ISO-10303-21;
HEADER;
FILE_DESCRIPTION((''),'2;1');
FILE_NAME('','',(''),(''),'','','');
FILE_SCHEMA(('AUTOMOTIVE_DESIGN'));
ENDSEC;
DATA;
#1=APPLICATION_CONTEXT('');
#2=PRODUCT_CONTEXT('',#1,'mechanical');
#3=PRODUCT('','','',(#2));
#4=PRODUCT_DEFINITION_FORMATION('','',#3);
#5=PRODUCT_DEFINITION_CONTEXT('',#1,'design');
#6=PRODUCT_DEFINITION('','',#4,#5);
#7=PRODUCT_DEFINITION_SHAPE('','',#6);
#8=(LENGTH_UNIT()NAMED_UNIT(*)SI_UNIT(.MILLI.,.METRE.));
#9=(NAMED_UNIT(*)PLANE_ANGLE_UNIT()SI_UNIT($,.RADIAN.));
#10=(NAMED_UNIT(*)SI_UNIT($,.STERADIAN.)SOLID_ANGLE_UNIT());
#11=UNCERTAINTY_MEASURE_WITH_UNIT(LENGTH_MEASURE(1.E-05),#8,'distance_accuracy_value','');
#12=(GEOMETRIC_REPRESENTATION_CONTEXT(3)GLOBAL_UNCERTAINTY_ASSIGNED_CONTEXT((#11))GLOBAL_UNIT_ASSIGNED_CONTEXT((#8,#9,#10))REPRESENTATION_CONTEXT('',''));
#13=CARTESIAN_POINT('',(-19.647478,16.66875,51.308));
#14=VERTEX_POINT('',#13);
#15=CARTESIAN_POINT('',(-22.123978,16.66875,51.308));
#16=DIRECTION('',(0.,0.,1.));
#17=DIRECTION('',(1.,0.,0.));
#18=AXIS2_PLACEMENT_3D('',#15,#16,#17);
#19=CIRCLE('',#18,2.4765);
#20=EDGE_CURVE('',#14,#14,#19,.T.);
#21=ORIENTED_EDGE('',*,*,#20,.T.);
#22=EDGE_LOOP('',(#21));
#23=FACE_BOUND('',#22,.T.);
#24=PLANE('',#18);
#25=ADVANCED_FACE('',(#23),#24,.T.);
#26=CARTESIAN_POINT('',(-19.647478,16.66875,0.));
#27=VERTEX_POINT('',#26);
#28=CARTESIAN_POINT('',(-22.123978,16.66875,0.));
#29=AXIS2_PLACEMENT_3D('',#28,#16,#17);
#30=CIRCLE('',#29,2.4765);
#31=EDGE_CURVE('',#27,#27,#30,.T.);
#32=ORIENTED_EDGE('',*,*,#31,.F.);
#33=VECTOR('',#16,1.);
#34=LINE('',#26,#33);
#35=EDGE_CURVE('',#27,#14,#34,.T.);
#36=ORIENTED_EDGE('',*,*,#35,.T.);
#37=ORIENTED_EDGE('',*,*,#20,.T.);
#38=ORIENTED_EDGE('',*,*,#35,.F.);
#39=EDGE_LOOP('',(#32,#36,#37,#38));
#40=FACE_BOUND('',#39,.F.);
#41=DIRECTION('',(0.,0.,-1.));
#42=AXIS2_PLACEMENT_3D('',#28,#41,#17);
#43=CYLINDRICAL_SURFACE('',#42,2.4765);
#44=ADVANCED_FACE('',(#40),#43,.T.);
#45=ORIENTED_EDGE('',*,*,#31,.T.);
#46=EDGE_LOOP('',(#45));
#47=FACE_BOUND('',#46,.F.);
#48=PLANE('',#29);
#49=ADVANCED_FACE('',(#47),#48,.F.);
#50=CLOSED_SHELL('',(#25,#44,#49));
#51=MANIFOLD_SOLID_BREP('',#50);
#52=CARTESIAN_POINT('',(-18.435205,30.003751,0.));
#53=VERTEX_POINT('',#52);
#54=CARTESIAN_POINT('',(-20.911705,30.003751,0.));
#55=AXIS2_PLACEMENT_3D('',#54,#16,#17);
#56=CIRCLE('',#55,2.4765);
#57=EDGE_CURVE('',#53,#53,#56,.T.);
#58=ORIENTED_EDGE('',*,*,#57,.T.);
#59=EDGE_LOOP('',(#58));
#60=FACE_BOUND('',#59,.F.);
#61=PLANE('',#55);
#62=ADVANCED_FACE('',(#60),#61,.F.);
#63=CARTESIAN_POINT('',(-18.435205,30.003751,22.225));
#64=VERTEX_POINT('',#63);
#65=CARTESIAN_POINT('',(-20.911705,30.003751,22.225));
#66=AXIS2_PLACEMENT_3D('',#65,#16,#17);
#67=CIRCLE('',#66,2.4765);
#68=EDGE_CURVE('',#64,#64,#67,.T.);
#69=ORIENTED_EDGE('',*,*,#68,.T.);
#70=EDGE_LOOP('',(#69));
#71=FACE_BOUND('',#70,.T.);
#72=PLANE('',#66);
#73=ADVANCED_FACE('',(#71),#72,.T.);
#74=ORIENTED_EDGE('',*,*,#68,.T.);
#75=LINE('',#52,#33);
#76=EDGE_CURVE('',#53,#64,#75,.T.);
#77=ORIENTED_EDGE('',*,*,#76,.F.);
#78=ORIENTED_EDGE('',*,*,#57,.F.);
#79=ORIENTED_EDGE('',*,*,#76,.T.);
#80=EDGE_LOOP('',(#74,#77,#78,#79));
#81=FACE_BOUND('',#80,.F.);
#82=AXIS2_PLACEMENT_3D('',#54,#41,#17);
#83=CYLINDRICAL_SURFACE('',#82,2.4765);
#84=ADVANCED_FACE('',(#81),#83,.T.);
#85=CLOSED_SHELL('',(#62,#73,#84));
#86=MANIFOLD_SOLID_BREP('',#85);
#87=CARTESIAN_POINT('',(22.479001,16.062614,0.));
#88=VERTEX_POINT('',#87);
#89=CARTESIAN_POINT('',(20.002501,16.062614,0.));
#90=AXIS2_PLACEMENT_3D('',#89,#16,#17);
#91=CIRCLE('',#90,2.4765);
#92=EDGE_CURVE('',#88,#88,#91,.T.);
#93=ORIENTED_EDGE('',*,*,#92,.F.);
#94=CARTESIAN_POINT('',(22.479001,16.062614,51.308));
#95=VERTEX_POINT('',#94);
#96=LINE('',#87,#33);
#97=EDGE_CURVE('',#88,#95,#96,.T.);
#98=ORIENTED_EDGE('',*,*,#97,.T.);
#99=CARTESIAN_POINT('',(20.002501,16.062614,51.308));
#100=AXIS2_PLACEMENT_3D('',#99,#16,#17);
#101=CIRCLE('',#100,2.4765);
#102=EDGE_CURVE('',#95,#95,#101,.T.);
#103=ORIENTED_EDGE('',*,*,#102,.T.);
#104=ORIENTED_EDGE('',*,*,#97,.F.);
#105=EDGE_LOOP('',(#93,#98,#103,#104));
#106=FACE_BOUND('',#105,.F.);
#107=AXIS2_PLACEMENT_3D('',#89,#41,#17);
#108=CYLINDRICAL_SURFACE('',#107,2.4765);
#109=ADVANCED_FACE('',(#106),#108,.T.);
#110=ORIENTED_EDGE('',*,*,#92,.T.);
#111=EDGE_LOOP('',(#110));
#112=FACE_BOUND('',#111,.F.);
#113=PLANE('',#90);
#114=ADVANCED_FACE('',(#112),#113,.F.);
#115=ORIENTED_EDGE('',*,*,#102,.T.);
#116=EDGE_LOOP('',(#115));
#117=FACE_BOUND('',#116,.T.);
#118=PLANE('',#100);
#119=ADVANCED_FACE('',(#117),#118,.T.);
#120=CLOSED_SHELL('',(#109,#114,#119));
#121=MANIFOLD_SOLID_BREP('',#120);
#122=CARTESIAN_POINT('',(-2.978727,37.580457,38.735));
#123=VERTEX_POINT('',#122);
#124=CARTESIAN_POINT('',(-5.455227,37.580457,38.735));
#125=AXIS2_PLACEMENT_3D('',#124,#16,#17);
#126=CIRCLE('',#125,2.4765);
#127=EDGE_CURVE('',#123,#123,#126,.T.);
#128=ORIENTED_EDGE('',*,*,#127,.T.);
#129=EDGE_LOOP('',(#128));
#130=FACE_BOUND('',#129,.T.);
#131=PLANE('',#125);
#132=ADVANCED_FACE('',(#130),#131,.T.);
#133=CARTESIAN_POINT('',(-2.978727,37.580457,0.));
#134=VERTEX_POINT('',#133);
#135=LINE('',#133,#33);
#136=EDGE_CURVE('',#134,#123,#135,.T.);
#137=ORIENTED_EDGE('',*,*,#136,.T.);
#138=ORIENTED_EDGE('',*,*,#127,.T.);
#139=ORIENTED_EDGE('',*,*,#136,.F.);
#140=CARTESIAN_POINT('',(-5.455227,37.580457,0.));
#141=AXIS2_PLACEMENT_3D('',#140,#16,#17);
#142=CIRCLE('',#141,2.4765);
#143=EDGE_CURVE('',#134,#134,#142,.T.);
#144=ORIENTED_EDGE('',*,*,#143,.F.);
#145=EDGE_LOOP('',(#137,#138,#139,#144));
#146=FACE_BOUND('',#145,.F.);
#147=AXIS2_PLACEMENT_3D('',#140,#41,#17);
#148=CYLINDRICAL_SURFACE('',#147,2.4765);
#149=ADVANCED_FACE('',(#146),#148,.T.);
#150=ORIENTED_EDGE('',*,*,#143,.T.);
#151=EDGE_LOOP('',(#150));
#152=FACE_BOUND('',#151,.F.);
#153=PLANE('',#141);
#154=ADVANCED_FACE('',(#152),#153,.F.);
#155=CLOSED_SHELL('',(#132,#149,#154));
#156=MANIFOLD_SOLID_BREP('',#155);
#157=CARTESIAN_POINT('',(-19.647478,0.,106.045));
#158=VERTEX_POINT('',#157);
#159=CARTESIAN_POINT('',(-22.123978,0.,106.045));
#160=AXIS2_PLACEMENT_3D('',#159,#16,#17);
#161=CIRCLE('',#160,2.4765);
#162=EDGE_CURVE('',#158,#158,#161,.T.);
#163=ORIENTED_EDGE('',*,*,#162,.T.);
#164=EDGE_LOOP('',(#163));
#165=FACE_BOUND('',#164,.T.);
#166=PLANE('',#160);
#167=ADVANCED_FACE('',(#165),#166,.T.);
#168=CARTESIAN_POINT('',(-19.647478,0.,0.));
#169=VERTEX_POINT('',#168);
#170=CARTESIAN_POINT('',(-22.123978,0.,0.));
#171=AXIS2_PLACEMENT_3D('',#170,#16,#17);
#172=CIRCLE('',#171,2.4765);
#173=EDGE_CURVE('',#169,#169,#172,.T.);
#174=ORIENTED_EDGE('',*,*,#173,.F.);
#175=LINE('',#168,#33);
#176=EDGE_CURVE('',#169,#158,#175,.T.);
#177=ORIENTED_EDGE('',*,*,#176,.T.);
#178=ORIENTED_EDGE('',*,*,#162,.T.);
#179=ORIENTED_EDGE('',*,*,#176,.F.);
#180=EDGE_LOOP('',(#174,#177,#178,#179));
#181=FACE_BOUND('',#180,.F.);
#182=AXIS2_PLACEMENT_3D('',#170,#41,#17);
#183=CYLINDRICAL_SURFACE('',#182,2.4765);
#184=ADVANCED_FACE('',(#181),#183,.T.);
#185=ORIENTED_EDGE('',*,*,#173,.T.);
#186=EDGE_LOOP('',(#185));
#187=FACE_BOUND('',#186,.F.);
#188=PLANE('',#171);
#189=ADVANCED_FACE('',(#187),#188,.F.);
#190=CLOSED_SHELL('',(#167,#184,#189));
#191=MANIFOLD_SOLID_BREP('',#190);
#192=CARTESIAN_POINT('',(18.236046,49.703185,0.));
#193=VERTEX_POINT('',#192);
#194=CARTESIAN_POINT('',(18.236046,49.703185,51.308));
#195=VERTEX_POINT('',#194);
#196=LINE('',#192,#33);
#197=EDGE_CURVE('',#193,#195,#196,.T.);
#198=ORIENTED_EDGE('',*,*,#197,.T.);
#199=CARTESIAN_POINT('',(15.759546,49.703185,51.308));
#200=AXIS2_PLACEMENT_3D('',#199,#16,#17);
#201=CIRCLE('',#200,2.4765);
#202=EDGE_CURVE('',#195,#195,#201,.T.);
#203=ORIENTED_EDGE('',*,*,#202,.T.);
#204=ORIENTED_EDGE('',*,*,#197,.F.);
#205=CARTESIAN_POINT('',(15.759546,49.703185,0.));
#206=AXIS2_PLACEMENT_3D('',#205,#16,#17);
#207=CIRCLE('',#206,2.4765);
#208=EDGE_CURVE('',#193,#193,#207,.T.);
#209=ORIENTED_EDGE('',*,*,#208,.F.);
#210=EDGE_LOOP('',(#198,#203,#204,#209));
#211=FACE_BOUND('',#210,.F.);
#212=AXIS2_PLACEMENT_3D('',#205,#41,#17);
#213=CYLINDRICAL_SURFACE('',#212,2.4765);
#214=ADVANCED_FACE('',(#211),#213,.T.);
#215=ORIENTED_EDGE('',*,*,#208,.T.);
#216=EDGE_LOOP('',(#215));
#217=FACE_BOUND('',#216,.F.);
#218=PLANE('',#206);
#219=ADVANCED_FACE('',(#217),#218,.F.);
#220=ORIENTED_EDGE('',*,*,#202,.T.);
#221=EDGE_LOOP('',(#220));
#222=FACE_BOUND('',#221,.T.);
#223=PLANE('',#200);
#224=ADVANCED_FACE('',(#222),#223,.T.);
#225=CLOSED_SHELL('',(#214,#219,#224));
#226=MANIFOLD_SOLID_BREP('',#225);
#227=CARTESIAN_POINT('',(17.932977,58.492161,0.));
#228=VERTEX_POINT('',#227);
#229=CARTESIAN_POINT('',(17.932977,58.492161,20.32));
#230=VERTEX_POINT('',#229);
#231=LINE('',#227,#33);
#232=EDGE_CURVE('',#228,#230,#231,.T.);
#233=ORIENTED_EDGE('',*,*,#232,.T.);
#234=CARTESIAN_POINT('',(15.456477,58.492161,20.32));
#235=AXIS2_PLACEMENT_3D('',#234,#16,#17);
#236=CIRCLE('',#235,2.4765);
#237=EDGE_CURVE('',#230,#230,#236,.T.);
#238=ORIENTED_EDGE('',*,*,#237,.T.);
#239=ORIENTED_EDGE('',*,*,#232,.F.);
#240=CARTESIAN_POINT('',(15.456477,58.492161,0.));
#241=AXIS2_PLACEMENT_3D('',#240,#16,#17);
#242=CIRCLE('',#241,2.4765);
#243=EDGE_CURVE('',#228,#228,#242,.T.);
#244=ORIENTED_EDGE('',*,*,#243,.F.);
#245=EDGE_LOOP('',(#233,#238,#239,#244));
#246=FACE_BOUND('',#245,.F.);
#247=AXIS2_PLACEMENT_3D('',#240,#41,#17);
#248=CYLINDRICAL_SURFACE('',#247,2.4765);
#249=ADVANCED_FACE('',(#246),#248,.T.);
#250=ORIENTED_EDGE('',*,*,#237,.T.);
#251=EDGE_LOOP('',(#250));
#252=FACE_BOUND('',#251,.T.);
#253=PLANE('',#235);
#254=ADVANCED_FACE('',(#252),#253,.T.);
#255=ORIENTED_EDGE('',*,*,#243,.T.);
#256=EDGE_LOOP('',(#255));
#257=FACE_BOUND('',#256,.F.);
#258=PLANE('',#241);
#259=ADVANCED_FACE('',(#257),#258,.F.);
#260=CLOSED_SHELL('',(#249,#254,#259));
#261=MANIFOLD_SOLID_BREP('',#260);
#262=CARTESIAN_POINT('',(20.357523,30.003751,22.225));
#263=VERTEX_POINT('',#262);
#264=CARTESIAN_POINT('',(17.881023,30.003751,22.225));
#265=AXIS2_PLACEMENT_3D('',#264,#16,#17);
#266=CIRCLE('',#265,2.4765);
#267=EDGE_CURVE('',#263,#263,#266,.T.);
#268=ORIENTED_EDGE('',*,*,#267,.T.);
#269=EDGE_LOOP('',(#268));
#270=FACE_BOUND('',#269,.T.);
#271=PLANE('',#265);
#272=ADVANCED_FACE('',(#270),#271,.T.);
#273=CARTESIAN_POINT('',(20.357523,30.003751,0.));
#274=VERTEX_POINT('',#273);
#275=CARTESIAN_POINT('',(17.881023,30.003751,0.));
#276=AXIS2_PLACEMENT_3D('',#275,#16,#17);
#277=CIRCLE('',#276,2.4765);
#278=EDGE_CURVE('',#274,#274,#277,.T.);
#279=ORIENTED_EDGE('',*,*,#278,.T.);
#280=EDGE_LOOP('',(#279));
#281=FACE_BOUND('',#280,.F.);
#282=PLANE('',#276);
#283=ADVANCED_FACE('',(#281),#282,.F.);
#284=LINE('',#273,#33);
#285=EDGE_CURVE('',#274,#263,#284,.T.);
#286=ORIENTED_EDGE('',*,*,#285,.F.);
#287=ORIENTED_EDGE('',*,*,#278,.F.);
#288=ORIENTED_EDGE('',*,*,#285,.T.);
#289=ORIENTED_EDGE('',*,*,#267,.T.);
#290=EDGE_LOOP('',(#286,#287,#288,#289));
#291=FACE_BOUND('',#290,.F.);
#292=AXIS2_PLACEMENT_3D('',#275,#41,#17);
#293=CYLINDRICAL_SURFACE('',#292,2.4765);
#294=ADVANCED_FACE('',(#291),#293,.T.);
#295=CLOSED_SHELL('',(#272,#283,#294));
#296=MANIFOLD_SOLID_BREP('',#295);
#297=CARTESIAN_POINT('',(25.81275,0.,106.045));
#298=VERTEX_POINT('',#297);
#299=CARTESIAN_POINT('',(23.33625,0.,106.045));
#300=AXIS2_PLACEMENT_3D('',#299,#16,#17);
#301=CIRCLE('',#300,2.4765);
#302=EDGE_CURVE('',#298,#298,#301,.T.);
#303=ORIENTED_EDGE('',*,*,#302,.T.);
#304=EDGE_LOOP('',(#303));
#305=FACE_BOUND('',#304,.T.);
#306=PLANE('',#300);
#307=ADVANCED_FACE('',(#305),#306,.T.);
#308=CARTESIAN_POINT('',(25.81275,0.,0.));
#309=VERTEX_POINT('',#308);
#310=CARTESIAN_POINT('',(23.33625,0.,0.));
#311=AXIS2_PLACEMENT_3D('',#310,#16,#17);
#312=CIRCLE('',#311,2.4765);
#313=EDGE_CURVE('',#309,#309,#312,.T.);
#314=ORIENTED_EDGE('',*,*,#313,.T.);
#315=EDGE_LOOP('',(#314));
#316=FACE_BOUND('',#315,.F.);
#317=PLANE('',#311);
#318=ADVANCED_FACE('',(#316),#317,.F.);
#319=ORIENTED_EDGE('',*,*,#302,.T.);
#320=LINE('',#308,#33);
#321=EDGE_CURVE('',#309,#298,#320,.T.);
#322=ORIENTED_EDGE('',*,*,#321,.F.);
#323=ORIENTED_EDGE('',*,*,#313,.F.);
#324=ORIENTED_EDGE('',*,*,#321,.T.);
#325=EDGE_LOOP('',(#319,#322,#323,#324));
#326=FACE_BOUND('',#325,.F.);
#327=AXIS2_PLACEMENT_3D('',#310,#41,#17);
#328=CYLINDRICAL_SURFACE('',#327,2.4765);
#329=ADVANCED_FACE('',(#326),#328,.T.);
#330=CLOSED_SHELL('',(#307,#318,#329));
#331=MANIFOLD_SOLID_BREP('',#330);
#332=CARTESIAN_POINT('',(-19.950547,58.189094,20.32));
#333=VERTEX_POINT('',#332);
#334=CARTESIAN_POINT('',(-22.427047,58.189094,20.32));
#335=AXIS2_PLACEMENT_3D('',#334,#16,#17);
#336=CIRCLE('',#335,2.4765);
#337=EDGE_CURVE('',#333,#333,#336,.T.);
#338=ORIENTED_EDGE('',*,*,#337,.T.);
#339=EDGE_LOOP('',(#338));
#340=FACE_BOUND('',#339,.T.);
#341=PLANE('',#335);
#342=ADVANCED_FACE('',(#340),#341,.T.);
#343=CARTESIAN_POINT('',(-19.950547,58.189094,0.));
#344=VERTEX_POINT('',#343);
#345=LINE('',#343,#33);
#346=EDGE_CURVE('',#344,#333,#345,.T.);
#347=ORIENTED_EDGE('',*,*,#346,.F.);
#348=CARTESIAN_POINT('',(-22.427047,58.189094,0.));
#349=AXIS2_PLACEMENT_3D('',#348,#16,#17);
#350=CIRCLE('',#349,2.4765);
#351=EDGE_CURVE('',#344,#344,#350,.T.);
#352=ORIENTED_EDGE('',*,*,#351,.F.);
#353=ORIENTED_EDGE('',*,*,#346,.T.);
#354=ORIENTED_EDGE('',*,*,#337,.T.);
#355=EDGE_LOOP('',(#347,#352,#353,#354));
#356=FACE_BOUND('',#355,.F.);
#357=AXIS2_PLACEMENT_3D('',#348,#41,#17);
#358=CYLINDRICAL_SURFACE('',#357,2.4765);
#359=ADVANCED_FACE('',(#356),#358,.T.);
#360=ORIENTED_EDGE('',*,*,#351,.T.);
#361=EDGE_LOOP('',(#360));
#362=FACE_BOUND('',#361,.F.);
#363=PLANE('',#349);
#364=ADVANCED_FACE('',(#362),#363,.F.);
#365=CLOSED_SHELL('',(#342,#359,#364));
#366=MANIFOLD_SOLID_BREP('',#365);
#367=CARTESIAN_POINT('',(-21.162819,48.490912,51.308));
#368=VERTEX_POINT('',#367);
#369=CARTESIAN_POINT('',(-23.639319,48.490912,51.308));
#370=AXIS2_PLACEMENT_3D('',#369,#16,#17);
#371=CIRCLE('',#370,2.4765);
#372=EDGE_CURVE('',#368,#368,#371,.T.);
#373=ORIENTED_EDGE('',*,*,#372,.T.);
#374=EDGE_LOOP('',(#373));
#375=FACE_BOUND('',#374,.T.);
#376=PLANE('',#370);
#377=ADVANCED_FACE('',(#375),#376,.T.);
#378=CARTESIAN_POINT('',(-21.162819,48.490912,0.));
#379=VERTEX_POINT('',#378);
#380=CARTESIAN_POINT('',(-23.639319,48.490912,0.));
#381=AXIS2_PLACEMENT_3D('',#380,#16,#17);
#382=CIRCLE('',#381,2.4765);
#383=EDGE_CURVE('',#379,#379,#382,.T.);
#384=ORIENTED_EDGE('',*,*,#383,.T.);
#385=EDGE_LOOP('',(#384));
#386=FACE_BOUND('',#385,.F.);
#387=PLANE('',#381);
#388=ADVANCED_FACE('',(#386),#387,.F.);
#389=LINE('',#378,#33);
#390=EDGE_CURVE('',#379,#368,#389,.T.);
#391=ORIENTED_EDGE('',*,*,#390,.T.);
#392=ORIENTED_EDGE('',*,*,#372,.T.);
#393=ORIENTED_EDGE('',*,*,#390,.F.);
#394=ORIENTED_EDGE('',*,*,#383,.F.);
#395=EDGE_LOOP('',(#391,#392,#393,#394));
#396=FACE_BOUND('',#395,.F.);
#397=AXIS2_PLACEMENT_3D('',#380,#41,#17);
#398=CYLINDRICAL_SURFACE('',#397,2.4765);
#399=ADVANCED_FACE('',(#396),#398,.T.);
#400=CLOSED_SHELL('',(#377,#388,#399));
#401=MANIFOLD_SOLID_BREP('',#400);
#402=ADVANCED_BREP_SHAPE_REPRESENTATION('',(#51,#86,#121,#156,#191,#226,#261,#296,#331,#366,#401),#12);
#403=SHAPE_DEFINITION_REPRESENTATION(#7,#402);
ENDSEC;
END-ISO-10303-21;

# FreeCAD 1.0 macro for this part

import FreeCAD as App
import Part
import Sketcher
Q = App.Units.Quantity

doc = App.newDocument("Part")
body = doc.addObject("PartDesign::Body", "Body")
body.AllowCompound = True

sketch1 = body.newObject("Sketcher::SketchObject", "Sketch")
sketch1.AttachmentSupport = (doc.getObject("XY_Plane"), [""])
sketch1.MapMode = "FlatFace"
sketch1.addGeometry([
    Part.Circle(App.Vector(-22.123978, 0, 0), App.Vector(0, 0, 1), 2.4765),
    Part.Circle(App.Vector(23.33625, 0, 0), App.Vector(0, 0, 1), 2.4765),
], False)
sketch1.addConstraint([
    Sketcher.Constraint("Equal", 0, 1),
    Sketcher.Constraint("PointOnObject", 0, 3, -1),
    Sketcher.Constraint("PointOnObject", 1, 3, -1),
    Sketcher.Constraint("Diameter", 0, Q("0.195 in")),
    Sketcher.Constraint("DistanceX", 0, 3, -1, 1, 22.123978),
    Sketcher.Constraint("DistanceX", -1, 1, 1, 3, 23.33625),
])
pad1 = body.newObject("PartDesign::Pad", "Pad")
pad1.Profile = sketch1
pad1.Length = Q("4.175 in")
body2 = doc.addObject("PartDesign::Body", "Body001")
body2.AllowCompound = True

sketch2 = body2.newObject("Sketcher::SketchObject", "Sketch001")
sketch2.AttachmentSupport = (doc.getObject("XY_Plane001"), [""])
sketch2.MapMode = "FlatFace"
sketch2.addGeometry([
    Part.Circle(App.Vector(-22.123978, 16.66875, 0), App.Vector(0, 0, 1), 2.4765),
    Part.Circle(App.Vector(20.002501, 16.062614, 0), App.Vector(0, 0, 1), 2.4765),
], False)
sketch2.addConstraint([
    Sketcher.Constraint("Equal", 0, 1),
    Sketcher.Constraint("Diameter", 0, Q("0.195 in")),
    Sketcher.Constraint("DistanceY", -1, 1, 0, 3, Q("0.65625 in")),
    Sketcher.Constraint("DistanceX", -1, 1, 1, 3, Q("0.7875 in")),
    Sketcher.Constraint("DistanceX", 0, 3, -1, 1, 22.123978),
    Sketcher.Constraint("DistanceY", -1, 1, 1, 3, 16.062614),
])
pad2 = body2.newObject("PartDesign::Pad", "Pad001")
pad2.Profile = sketch2
pad2.Length = Q("2.02 in")
body3 = doc.addObject("PartDesign::Body", "Body002")
body3.AllowCompound = True

sketch3 = body3.newObject("Sketcher::SketchObject", "Sketch002")
sketch3.AttachmentSupport = (doc.getObject("XY_Plane002"), [""])
sketch3.MapMode = "FlatFace"
sketch3.addGeometry([
    Part.Circle(App.Vector(-20.911705, 30.003751, 0), App.Vector(0, 0, 1), 2.4765),
    Part.Circle(App.Vector(17.881023, 30.003751, 0), App.Vector(0, 0, 1), 2.4765),
], False)
sketch3.addConstraint([
    Sketcher.Constraint("Equal", 0, 1),
    Sketcher.Constraint("Horizontal", 0, 3, 1, 3),
    Sketcher.Constraint("Diameter", 0, Q("0.195 in")),
    Sketcher.Constraint("DistanceY", -1, 1, 0, 3, 30.003751),
    Sketcher.Constraint("DistanceX", 0, 3, -1, 1, 20.911705),
    Sketcher.Constraint("DistanceX", -1, 1, 1, 3, 17.881023),
])
pad3 = body3.newObject("PartDesign::Pad", "Pad002")
pad3.Profile = sketch3
pad3.Length = Q("0.875 in")
body4 = doc.addObject("PartDesign::Body", "Body003")

sketch4 = body4.newObject("Sketcher::SketchObject", "Sketch003")
sketch4.AttachmentSupport = (doc.getObject("XY_Plane003"), [""])
sketch4.MapMode = "FlatFace"
sketch4.addGeometry(Part.Circle(App.Vector(-5.455227, 37.580457, 0), App.Vector(0, 0, 1), 2.4765), False)
sketch4.addConstraint([
    Sketcher.Constraint("Diameter", 0, Q("0.195 in")),
    Sketcher.Constraint("DistanceX", 0, 3, -1, 1, 5.455227),
    Sketcher.Constraint("DistanceY", -1, 1, 0, 3, 37.580457),
])
pad4 = body4.newObject("PartDesign::Pad", "Pad003")
pad4.Profile = sketch4
pad4.Length = Q("1.525 in")
body5 = doc.addObject("PartDesign::Body", "Body004")
body5.AllowCompound = True

sketch5 = body5.newObject("Sketcher::SketchObject", "Sketch004")
sketch5.AttachmentSupport = (doc.getObject("XY_Plane004"), [""])
sketch5.MapMode = "FlatFace"
sketch5.addGeometry([
    Part.Circle(App.Vector(-23.639319, 48.490912, 0), App.Vector(0, 0, 1), 2.4765),
    Part.Circle(App.Vector(15.759546, 49.703185, 0), App.Vector(0, 0, 1), 2.4765),
], False)
sketch5.addConstraint([
    Sketcher.Constraint("Equal", 0, 1),
    Sketcher.Constraint("Diameter", 0, Q("0.195 in")),
    Sketcher.Constraint("DistanceX", 0, 3, -1, 1, 23.639319),
    Sketcher.Constraint("DistanceY", -1, 1, 0, 3, 48.490912),
    Sketcher.Constraint("DistanceX", -1, 1, 1, 3, 15.759546),
    Sketcher.Constraint("DistanceY", -1, 1, 1, 3, 49.703185),
])
pad5 = body5.newObject("PartDesign::Pad", "Pad004")
pad5.Profile = sketch5
pad5.Length = Q("2.02 in")
body6 = doc.addObject("PartDesign::Body", "Body005")
body6.AllowCompound = True

sketch6 = body6.newObject("Sketcher::SketchObject", "Sketch005")
sketch6.AttachmentSupport = (doc.getObject("XY_Plane005"), [""])
sketch6.MapMode = "FlatFace"
sketch6.addGeometry([
    Part.Circle(App.Vector(-22.427047, 58.189094, 0), App.Vector(0, 0, 1), 2.4765),
    Part.Circle(App.Vector(15.456477, 58.492161, 0), App.Vector(0, 0, 1), 2.4765),
], False)
sketch6.addConstraint([
    Sketcher.Constraint("Equal", 0, 1),
    Sketcher.Constraint("Diameter", 0, Q("0.195 in")),
    Sketcher.Constraint("DistanceY", -1, 1, 1, 3, 58.492161),
    Sketcher.Constraint("DistanceX", 0, 3, -1, 1, 22.427047),
    Sketcher.Constraint("DistanceY", -1, 1, 0, 3, 58.189094),
    Sketcher.Constraint("DistanceX", -1, 1, 1, 3, 15.456477),
])
pad6 = body6.newObject("PartDesign::Pad", "Pad005")
pad6.Profile = sketch6
pad6.Length = Q("0.8 in")

doc.recompute()
